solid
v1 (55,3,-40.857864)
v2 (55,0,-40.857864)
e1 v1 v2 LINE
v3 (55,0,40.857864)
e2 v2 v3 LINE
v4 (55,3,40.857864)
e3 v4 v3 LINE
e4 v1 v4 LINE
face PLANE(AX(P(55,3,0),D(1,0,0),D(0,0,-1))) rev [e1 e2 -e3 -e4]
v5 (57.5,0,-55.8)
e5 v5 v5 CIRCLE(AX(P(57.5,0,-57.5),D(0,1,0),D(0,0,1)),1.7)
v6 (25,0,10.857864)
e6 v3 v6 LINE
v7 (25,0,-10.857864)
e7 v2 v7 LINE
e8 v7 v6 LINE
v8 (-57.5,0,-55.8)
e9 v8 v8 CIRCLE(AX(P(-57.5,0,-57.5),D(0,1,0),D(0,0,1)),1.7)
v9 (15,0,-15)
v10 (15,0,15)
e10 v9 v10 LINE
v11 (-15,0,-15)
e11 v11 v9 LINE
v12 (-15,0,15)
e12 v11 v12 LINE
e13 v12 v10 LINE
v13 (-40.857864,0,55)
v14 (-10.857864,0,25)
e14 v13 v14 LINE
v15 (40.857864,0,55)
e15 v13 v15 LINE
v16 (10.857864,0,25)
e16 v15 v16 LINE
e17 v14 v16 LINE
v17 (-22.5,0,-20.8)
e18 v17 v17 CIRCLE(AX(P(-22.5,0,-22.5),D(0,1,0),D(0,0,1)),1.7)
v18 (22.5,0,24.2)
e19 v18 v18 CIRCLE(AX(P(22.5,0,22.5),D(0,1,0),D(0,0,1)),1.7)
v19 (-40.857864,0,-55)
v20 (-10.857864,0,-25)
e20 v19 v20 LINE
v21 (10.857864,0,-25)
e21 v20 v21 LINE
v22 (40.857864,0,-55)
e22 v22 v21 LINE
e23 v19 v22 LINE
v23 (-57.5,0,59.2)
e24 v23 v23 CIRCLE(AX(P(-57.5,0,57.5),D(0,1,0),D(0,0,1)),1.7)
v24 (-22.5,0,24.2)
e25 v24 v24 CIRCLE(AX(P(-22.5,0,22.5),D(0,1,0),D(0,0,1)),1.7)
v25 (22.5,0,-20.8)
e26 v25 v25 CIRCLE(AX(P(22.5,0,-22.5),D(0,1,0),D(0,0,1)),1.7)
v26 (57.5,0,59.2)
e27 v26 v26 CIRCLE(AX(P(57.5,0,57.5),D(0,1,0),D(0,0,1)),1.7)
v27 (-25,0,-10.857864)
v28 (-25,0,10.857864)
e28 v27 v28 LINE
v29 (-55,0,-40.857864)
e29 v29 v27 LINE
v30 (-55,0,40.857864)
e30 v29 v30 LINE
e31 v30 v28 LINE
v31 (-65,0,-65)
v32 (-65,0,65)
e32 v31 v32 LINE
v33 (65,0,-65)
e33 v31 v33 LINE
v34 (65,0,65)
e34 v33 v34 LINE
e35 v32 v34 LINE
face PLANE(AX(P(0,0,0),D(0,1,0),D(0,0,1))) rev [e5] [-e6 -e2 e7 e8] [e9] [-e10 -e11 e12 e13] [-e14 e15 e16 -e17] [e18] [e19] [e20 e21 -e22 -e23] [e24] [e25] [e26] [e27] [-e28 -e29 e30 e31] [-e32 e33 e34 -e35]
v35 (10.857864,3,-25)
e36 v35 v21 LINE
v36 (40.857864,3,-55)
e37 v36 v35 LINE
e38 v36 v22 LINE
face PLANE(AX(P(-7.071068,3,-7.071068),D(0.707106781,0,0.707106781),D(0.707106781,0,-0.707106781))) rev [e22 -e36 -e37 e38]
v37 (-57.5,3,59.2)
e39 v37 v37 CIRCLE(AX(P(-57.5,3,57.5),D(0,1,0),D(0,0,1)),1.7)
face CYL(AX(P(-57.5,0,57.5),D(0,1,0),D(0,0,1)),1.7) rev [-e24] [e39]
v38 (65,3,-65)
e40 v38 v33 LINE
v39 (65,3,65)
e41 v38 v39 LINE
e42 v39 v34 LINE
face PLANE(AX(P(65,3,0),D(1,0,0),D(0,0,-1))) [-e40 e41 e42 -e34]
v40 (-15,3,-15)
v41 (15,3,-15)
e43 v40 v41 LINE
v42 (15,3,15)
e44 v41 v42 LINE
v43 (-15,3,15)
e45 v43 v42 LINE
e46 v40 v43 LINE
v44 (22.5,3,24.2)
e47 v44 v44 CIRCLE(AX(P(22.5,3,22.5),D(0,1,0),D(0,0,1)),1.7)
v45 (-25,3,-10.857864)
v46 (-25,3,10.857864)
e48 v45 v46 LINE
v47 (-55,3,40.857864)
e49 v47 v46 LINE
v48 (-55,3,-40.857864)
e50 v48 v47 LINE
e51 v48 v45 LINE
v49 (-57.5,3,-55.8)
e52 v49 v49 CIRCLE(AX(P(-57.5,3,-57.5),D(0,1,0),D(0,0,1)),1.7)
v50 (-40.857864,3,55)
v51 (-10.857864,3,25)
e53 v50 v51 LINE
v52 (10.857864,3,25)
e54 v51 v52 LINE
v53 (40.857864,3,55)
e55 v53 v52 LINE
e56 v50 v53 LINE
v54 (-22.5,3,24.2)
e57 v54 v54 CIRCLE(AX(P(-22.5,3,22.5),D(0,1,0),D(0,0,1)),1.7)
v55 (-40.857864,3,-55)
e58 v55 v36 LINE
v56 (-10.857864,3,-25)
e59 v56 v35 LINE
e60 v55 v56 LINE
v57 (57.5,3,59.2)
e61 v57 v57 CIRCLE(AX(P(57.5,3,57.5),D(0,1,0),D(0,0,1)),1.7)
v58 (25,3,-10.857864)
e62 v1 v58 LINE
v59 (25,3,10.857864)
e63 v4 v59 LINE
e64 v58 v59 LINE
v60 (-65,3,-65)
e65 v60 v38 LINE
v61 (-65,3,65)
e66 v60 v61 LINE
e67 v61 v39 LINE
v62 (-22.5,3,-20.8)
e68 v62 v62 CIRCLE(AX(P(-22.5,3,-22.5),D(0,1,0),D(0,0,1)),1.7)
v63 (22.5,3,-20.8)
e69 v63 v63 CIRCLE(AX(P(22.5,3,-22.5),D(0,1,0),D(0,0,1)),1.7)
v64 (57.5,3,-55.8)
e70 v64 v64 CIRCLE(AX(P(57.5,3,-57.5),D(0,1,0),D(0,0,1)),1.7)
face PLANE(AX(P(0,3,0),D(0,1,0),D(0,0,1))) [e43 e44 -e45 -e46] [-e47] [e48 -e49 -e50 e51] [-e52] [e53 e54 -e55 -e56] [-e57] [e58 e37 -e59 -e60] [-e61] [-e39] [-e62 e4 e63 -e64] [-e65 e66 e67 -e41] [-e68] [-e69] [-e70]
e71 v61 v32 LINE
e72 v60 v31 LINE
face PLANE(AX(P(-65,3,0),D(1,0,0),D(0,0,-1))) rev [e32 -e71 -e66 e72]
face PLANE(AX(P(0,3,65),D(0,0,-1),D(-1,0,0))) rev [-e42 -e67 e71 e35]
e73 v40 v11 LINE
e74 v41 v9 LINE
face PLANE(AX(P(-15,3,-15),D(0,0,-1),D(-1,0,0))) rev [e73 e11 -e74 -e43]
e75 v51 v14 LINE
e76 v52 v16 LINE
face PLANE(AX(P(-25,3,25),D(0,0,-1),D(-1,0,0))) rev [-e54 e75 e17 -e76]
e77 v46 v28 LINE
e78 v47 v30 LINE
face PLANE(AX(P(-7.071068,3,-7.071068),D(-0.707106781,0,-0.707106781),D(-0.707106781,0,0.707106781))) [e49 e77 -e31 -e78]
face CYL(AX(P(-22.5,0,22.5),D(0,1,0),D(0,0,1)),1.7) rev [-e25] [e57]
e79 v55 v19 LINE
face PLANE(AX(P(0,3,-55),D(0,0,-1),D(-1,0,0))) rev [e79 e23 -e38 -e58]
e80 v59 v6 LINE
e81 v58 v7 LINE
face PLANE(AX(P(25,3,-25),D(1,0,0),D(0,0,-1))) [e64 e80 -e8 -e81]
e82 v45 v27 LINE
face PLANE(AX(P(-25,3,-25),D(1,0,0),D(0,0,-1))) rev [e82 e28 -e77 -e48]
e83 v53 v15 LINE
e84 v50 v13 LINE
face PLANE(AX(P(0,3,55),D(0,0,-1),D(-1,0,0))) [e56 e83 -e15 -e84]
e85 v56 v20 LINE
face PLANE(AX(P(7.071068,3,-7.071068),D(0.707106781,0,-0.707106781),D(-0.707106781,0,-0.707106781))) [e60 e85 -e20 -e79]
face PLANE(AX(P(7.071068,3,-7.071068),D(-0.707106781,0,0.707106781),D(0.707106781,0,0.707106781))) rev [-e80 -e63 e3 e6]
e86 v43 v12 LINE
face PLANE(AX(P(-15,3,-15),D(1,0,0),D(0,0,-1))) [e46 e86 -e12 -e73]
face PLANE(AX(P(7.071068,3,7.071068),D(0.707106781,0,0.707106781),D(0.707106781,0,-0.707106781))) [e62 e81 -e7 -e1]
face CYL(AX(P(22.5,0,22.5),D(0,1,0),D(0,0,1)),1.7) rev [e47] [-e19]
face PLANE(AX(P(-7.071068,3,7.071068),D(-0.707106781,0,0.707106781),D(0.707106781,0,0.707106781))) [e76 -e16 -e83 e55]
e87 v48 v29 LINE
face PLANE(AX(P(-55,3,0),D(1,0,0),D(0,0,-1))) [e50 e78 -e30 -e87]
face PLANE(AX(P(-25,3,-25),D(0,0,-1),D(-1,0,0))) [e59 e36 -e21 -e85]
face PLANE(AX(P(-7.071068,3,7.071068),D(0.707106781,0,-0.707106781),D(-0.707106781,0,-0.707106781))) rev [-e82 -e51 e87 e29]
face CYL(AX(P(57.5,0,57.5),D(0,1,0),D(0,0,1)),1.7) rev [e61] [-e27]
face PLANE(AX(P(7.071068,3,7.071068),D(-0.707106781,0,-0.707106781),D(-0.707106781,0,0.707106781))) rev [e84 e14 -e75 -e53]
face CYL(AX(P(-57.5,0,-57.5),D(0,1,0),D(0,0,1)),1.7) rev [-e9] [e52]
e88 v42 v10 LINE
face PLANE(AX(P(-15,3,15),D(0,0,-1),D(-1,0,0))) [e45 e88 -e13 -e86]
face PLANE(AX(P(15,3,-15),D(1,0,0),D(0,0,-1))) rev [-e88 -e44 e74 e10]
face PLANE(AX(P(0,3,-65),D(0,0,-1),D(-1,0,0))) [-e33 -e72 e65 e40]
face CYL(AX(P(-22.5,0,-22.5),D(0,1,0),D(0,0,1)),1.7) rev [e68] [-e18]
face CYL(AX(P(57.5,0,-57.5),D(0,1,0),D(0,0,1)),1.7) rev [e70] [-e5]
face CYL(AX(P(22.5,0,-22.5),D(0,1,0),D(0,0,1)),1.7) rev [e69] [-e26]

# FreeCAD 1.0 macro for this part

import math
import FreeCAD as App
import Part
import Sketcher
from FreeCAD import Vector
Q = App.Units.Quantity

doc = App.newDocument("Part")
body = doc.addObject("PartDesign::Body", "Body")

sketch1 = body.newObject("Sketcher::SketchObject", "Sketch")
sketch1.AttachmentSupport = (doc.getObject("XZ_Plane"), [""])
sketch1.MapMode = "FlatFace"
sketch1.addGeometry([
    Part.LineSegment(Vector(-65, -65, 0), Vector(-65, 65, 0)),
    Part.LineSegment(Vector(-65, 65, 0), Vector(65, 65, 0)),
    Part.LineSegment(Vector(65, 65, 0), Vector(65, -65, 0)),
    Part.LineSegment(Vector(65, -65, 0), Vector(-65, -65, 0)),
    Part.LineSegment(Vector(41, 55, 0), Vector(-41, 55, 0)),
    Part.LineSegment(Vector(-41, 55, 0), Vector(-11, 25, 0)),
    Part.LineSegment(Vector(-11, 25, 0), Vector(11, 25, 0)),
    Part.LineSegment(Vector(11, 25, 0), Vector(41, 55, 0)),
    Part.LineSegment(Vector(-55, 41, 0), Vector(-55, -41, 0)),
    Part.LineSegment(Vector(-55, -41, 0), Vector(-25, -11, 0)),
    Part.LineSegment(Vector(-25, -11, 0), Vector(-25, 11, 0)),
    Part.LineSegment(Vector(-25, 11, 0), Vector(-55, 41, 0)),
    Part.LineSegment(Vector(15, 15, 0), Vector(-15, 15, 0)),
    Part.LineSegment(Vector(-15, 15, 0), Vector(-15, -15, 0)),
    Part.LineSegment(Vector(-15, -15, 0), Vector(15, -15, 0)),
    Part.LineSegment(Vector(15, -15, 0), Vector(15, 15, 0)),
    Part.LineSegment(Vector(55, -41, 0), Vector(55, 41, 0)),
    Part.LineSegment(Vector(55, 41, 0), Vector(25, 11, 0)),
    Part.LineSegment(Vector(25, 11, 0), Vector(25, -11, 0)),
    Part.LineSegment(Vector(25, -11, 0), Vector(55, -41, 0)),
    Part.LineSegment(Vector(-41, -55, 0), Vector(41, -55, 0)),
    Part.LineSegment(Vector(41, -55, 0), Vector(11, -25, 0)),
    Part.LineSegment(Vector(11, -25, 0), Vector(-11, -25, 0)),
    Part.LineSegment(Vector(-11, -25, 0), Vector(-41, -55, 0)),
], False)
sketch1.addConstraint([
    Sketcher.Constraint("Coincident", 0, 2, 1, 1),
    Sketcher.Constraint("Coincident", 1, 2, 2, 1),
    Sketcher.Constraint("Coincident", 2, 2, 3, 1),
    Sketcher.Constraint("Coincident", 3, 2, 0, 1),
    Sketcher.Constraint("Coincident", 4, 2, 5, 1),
    Sketcher.Constraint("Coincident", 5, 2, 6, 1),
    Sketcher.Constraint("Coincident", 6, 2, 7, 1),
    Sketcher.Constraint("Coincident", 7, 2, 4, 1),
    Sketcher.Constraint("Coincident", 8, 2, 9, 1),
    Sketcher.Constraint("Coincident", 9, 2, 10, 1),
    Sketcher.Constraint("Coincident", 10, 2, 11, 1),
    Sketcher.Constraint("Coincident", 11, 2, 8, 1),
    Sketcher.Constraint("Coincident", 12, 2, 13, 1),
    Sketcher.Constraint("Coincident", 13, 2, 14, 1),
    Sketcher.Constraint("Coincident", 14, 2, 15, 1),
    Sketcher.Constraint("Coincident", 15, 2, 12, 1),
    Sketcher.Constraint("Coincident", 16, 2, 17, 1),
    Sketcher.Constraint("Coincident", 17, 2, 18, 1),
    Sketcher.Constraint("Coincident", 18, 2, 19, 1),
    Sketcher.Constraint("Coincident", 19, 2, 16, 1),
    Sketcher.Constraint("Coincident", 20, 2, 21, 1),
    Sketcher.Constraint("Coincident", 21, 2, 22, 1),
    Sketcher.Constraint("Coincident", 22, 2, 23, 1),
    Sketcher.Constraint("Coincident", 23, 2, 20, 1),
    Sketcher.Constraint("Vertical", 0),
    Sketcher.Constraint("Horizontal", 1),
    Sketcher.Constraint("Vertical", 2),
    Sketcher.Constraint("Horizontal", 3),
    Sketcher.Constraint("Horizontal", 4),
    Sketcher.Constraint("Horizontal", 6),
    Sketcher.Constraint("Vertical", 8),
    Sketcher.Constraint("Vertical", 10),
    Sketcher.Constraint("Horizontal", 12),
    Sketcher.Constraint("Vertical", 13),
    Sketcher.Constraint("Horizontal", 14),
    Sketcher.Constraint("Vertical", 15),
    Sketcher.Constraint("Vertical", 16),
    Sketcher.Constraint("Vertical", 18),
    Sketcher.Constraint("Horizontal", 20),
    Sketcher.Constraint("Horizontal", 22),
    Sketcher.Constraint("Symmetric", 0, 2, 2, 2, -1, 1),
    Sketcher.Constraint("Symmetric", 12, 2, 14, 2, -1, 1),
    Sketcher.Constraint("Symmetric", 8, 2, 16, 2, -1, 1),
    Sketcher.Constraint("Symmetric", 9, 2, 17, 2, -1, 1),
    Sketcher.Constraint("Symmetric", 4, 2, 20, 2, -1, 1),
    Sketcher.Constraint("Symmetric", 5, 2, 21, 2, -1, 1),
    Sketcher.Constraint("Perpendicular", 5, 7),
    Sketcher.Constraint("Parallel", 7, 9),
    Sketcher.Constraint("Perpendicular", 9, 11),
    Sketcher.Constraint("Perpendicular", 17, 19),
    Sketcher.Constraint("Perpendicular", 21, 23),
    Sketcher.Constraint("Horizontal", 11, 2, 16, 2),
    Sketcher.Constraint("Horizontal", 10, 2, 17, 2),
    Sketcher.Constraint("Horizontal", 9, 2, 18, 2),
    Sketcher.Constraint("Vertical", 7, 2, 20, 2),
    Sketcher.Constraint("Vertical", 5, 2, 22, 2),
    Sketcher.Constraint("Equal", 3, 0),
    Sketcher.Constraint("Equal", 20, 8),
    Sketcher.Constraint("Equal", 22, 10),
    Sketcher.Constraint("Equal", 14, 13),
    Sketcher.Constraint("DistanceX", 1, 1, 1, 2, Q("130 mm")),
    Sketcher.Constraint("DistanceX", 12, 2, 12, 1, Q("30 mm")),
    Sketcher.Constraint("DistanceY", -1, 1, 4, 2, Q("55 mm")),
    Sketcher.Constraint("DistanceY", -1, 1, 5, 2, Q("25 mm")),
    Sketcher.Constraint("DistanceX", 8, 2, -1, 1, Q("55 mm")),
    Sketcher.Constraint("DistanceX", 4, 2, 4, 1, Q("81.715729 mm")),
])
pad1 = body.newObject("PartDesign::Pad", "Pad")
pad1.Profile = sketch1
pad1.Length = 3
pad1.Reversed = True

sketch2 = body.newObject("Sketcher::SketchObject", "Sketch001")
sketch2.AttachmentSupport = (doc.getObject("XZ_Plane"), [""])
sketch2.MapMode = "FlatFace"
sketch2.AttachmentOffset = App.Placement(Vector(0, 0, -3), App.Rotation())
sketch2.addGeometry([
    Part.ArcOfCircle(Part.Circle(Vector(-57.5, -57.5, 0), Vector(0, 0, 1), 1.7), math.radians(90), math.radians(360)),
    Part.ArcOfCircle(Part.Circle(Vector(-57.5, -57.5, 0), Vector(0, 0, 1), 1.7), math.radians(0), math.radians(90)),
    Part.ArcOfCircle(Part.Circle(Vector(-57.5, 57.5, 0), Vector(0, 0, 1), 1.7), math.radians(-90), math.radians(0)),
    Part.ArcOfCircle(Part.Circle(Vector(-57.5, 57.5, 0), Vector(0, 0, 1), 1.7), math.radians(0), math.radians(270)),
    Part.ArcOfCircle(Part.Circle(Vector(57.5, 57.5, 0), Vector(0, 0, 1), 1.7), math.radians(180), math.radians(270)),
    Part.ArcOfCircle(Part.Circle(Vector(57.5, 57.5, 0), Vector(0, 0, 1), 1.7), math.radians(0), math.radians(180)),
    Part.ArcOfCircle(Part.Circle(Vector(57.5, 57.5, 0), Vector(0, 0, 1), 1.7), math.radians(-90), math.radians(0)),
    Part.ArcOfCircle(Part.Circle(Vector(57.5, -57.5, 0), Vector(0, 0, 1), 1.7), math.radians(90), math.radians(180)),
    Part.ArcOfCircle(Part.Circle(Vector(57.5, -57.5, 0), Vector(0, 0, 1), 1.7), math.radians(0), math.radians(90)),
    Part.ArcOfCircle(Part.Circle(Vector(57.5, -57.5, 0), Vector(0, 0, 1), 1.7), math.radians(180), math.radians(360)),
], False)
sketch2.addConstraint([
    Sketcher.Constraint("Tangent", 0, 1, 1, 2),
    Sketcher.Constraint("Coincident", 1, 1, 0, 2),
    Sketcher.Constraint("Tangent", 2, 1, 3, 2),
    Sketcher.Constraint("Coincident", 3, 1, 2, 2),
    Sketcher.Constraint("Tangent", 4, 1, 5, 2),
    Sketcher.Constraint("Tangent", 5, 1, 6, 2),
    Sketcher.Constraint("Tangent", 6, 1, 4, 2),
    Sketcher.Constraint("Tangent", 7, 1, 8, 2),
    Sketcher.Constraint("Tangent", 8, 1, 9, 2),
    Sketcher.Constraint("Tangent", 9, 1, 7, 2),
    Sketcher.Constraint("Equal", 1, 2),
    Sketcher.Constraint("Equal", 3, 4),
    Sketcher.Constraint("Equal", 6, 7),
    Sketcher.Constraint("Symmetric", 0, 3, 4, 3, -1, 1),
    Sketcher.Constraint("Symmetric", 2, 3, 7, 3, -1, 1),
    Sketcher.Constraint("Symmetric", 2, 3, 4, 3, -2),
    Sketcher.Constraint("Horizontal", 9, 3, 1, 1),
    Sketcher.Constraint("Horizontal", 6, 3, 3, 1),
    Sketcher.Constraint("Horizontal", 3, 1, 4, 1),
    Sketcher.Constraint("Horizontal", 4, 1, 5, 1),
    Sketcher.Constraint("Horizontal", 1, 1, 8, 1),
    Sketcher.Constraint("Horizontal", 8, 1, 9, 1),
    Sketcher.Constraint("Vertical", 3, 3, 0, 1),
    Sketcher.Constraint("Vertical", 0, 1, 2, 1),
    Sketcher.Constraint("Vertical", 9, 3, 6, 1),
    Sketcher.Constraint("Vertical", 6, 1, 7, 1),
    Sketcher.Constraint("Radius", 0, Q("1.7 mm")),
    Sketcher.Constraint("DistanceY", 0, 3, 2, 3, Q("115 mm")),
    Sketcher.Constraint("DistanceX", 2, 3, 4, 3, Q("115 mm")),
])
pocket1 = body.newObject("PartDesign::Pocket", "Pocket")
pocket1.Profile = sketch2
pocket1.Length = 3
pocket1.Reversed = True

sketch3 = body.newObject("Sketcher::SketchObject", "Sketch002")
sketch3.AttachmentSupport = (doc.getObject("XZ_Plane"), [""])
sketch3.MapMode = "FlatFace"
sketch3.AttachmentOffset = App.Placement(Vector(0, 0, -3), App.Rotation())
sketch3.addGeometry([
    Part.ArcOfCircle(Part.Circle(Vector(-22.5, 22.5, 0), Vector(0, 0, 1), 1.7), math.radians(-90), math.radians(0)),
    Part.ArcOfCircle(Part.Circle(Vector(-22.5, 22.5, 0), Vector(0, 0, 1), 1.7), math.radians(0), math.radians(270)),
    Part.ArcOfCircle(Part.Circle(Vector(-22.5, -22.5, 0), Vector(0, 0, 1), 1.7), math.radians(90), math.radians(360)),
    Part.ArcOfCircle(Part.Circle(Vector(-22.5, -22.5, 0), Vector(0, 0, 1), 1.7), math.radians(0), math.radians(90)),
    Part.ArcOfCircle(Part.Circle(Vector(22.5, 22.5, 0), Vector(0, 0, 1), 1.7), math.radians(180), math.radians(270)),
    Part.ArcOfCircle(Part.Circle(Vector(22.5, 22.5, 0), Vector(0, 0, 1), 1.7), math.radians(0), math.radians(180)),
    Part.ArcOfCircle(Part.Circle(Vector(22.5, 22.5, 0), Vector(0, 0, 1), 1.7), math.radians(-90), math.radians(0)),
    Part.ArcOfCircle(Part.Circle(Vector(22.5, -22.5, 0), Vector(0, 0, 1), 1.7), math.radians(90), math.radians(180)),
    Part.ArcOfCircle(Part.Circle(Vector(22.5, -22.5, 0), Vector(0, 0, 1), 1.7), math.radians(0), math.radians(90)),
    Part.ArcOfCircle(Part.Circle(Vector(22.5, -22.5, 0), Vector(0, 0, 1), 1.7), math.radians(180), math.radians(360)),
], False)
sketch3.addConstraint([
    Sketcher.Constraint("Tangent", 0, 1, 1, 2),
    Sketcher.Constraint("Coincident", 1, 1, 0, 2),
    Sketcher.Constraint("Tangent", 2, 1, 3, 2),
    Sketcher.Constraint("Coincident", 3, 1, 2, 2),
    Sketcher.Constraint("Tangent", 4, 1, 5, 2),
    Sketcher.Constraint("Tangent", 5, 1, 6, 2),
    Sketcher.Constraint("Tangent", 6, 1, 4, 2),
    Sketcher.Constraint("Tangent", 7, 1, 8, 2),
    Sketcher.Constraint("Tangent", 8, 1, 9, 2),
    Sketcher.Constraint("Tangent", 9, 1, 7, 2),
    Sketcher.Constraint("Equal", 1, 2),
    Sketcher.Constraint("Equal", 3, 4),
    Sketcher.Constraint("Equal", 6, 7),
    Sketcher.Constraint("Symmetric", 2, 3, 4, 3, -1, 1),
    Sketcher.Constraint("Symmetric", 0, 3, 7, 3, -1, 1),
    Sketcher.Constraint("Symmetric", 0, 3, 4, 3, -2),
    Sketcher.Constraint("Horizontal", 6, 3, 1, 1),
    Sketcher.Constraint("Horizontal", 9, 3, 3, 1),
    Sketcher.Constraint("Horizontal", 1, 1, 4, 1),
    Sketcher.Constraint("Horizontal", 4, 1, 5, 1),
    Sketcher.Constraint("Horizontal", 3, 1, 8, 1),
    Sketcher.Constraint("Horizontal", 8, 1, 9, 1),
    Sketcher.Constraint("Vertical", 3, 3, 0, 1),
    Sketcher.Constraint("Vertical", 0, 1, 2, 1),
    Sketcher.Constraint("Vertical", 9, 3, 6, 1),
    Sketcher.Constraint("Vertical", 6, 1, 7, 1),
    Sketcher.Constraint("Radius", 0, Q("1.7 mm")),
    Sketcher.Constraint("DistanceY", 2, 3, 0, 3, Q("45 mm")),
    Sketcher.Constraint("DistanceX", 0, 3, 4, 3, Q("45 mm")),
])
pocket2 = body.newObject("PartDesign::Pocket", "Pocket001")
pocket2.Profile = sketch3
pocket2.Length = 3
pocket2.Reversed = True

doc.recompute()
